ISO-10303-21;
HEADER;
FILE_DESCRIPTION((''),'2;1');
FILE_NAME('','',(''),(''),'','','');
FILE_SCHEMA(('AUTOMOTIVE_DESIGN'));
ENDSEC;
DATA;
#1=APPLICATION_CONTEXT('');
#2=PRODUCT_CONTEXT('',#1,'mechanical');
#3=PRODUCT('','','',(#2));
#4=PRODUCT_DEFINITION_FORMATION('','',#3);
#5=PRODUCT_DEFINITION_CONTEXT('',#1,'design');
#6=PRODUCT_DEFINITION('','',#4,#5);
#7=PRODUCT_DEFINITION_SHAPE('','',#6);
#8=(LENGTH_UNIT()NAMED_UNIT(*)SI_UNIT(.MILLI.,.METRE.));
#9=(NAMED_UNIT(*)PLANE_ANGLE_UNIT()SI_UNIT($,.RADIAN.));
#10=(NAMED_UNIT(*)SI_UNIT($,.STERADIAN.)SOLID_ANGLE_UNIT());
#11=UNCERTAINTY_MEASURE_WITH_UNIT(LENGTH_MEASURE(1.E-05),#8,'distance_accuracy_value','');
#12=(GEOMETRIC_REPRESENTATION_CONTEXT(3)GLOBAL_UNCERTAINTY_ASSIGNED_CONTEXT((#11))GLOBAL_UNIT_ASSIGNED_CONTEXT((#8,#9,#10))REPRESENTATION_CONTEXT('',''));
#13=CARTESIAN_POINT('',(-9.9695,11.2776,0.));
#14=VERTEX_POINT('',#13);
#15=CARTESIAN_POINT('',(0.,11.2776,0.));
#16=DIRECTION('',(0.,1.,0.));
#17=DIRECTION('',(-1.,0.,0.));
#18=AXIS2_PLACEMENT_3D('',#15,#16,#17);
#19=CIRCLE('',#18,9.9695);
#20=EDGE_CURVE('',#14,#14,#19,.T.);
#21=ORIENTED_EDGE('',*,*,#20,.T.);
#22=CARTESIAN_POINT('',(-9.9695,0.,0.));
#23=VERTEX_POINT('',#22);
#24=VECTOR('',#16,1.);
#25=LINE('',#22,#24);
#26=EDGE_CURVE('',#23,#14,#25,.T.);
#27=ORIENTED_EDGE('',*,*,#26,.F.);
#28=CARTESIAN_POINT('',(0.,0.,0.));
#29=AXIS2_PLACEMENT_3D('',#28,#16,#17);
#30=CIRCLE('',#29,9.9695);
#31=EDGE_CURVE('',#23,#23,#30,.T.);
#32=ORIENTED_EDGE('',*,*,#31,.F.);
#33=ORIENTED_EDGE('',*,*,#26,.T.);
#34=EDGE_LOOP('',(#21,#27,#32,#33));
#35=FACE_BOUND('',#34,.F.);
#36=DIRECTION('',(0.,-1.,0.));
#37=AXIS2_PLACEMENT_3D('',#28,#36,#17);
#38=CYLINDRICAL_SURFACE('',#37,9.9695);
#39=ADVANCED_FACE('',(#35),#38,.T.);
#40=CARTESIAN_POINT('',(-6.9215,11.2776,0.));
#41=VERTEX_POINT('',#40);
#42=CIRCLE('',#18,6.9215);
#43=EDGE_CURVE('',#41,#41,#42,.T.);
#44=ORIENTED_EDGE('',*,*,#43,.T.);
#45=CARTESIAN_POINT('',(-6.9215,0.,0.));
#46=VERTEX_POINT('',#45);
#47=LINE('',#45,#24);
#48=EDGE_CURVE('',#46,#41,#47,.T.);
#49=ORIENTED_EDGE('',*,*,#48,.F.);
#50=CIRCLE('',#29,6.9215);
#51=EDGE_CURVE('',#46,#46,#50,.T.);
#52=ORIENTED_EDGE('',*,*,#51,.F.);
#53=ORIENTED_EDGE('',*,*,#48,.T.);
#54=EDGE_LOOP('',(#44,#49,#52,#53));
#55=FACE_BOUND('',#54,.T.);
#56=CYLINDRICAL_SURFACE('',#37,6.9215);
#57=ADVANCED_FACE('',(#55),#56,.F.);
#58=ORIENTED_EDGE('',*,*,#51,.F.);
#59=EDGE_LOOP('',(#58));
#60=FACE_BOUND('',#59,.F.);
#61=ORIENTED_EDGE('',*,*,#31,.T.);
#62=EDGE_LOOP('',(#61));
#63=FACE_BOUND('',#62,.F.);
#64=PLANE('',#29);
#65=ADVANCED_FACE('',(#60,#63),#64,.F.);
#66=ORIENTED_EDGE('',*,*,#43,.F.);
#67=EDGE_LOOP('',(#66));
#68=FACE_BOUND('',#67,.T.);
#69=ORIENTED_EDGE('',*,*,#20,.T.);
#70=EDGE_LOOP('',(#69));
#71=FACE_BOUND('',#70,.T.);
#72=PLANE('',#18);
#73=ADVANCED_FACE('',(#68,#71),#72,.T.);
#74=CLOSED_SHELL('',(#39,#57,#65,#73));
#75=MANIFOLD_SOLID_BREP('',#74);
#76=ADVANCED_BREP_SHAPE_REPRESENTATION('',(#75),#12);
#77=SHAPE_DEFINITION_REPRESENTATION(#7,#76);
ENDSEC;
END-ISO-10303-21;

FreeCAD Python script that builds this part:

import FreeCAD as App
import Part
import Sketcher
from FreeCAD import Vector
Q = App.Units.Quantity

doc = App.newDocument("Part")
body = doc.addObject("PartDesign::Body", "Body")

sketch1 = body.newObject("Sketcher::SketchObject", "Sketch")
sketch1.AttachmentSupport = (doc.getObject("XZ_Plane"), [""])
sketch1.MapMode = "FlatFace"
sketch1.addGeometry([
    Part.Circle(Vector(0, 0, 0), Vector(0, 0, 1), 9.9695),
    Part.Circle(Vector(0, 0, 0), Vector(0, 0, 1), 6.9215),
], False)
sketch1.addConstraint([
    Sketcher.Constraint("Coincident", 0, 3, -1, 1),
    Sketcher.Constraint("Coincident", 1, 3, -1, 1),
    Sketcher.Constraint("Diameter", 0, Q("0.785 in")),
    Sketcher.Constraint("Diameter", 1, Q("0.545 in")),
])
pad1 = body.newObject("PartDesign::Pad", "Pad")
pad1.Profile = sketch1
pad1.Length = Q("0.444 in")
pad1.Reversed = True

doc.recompute()
